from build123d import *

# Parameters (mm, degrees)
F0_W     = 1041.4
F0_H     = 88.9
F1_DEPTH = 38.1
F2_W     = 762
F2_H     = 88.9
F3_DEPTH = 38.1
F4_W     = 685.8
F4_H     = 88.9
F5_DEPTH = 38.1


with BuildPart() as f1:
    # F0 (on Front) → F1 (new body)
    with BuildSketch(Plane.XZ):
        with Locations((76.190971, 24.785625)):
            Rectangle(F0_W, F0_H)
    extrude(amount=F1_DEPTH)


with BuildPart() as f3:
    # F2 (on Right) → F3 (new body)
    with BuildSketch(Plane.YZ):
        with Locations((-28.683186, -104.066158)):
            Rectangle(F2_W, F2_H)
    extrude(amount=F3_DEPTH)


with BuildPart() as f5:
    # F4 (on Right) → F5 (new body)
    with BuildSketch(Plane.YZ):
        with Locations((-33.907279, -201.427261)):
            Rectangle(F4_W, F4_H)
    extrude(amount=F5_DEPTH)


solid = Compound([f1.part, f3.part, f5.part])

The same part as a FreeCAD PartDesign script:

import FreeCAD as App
import Part
import Sketcher
from FreeCAD import Vector
Q = App.Units.Quantity

doc = App.newDocument("Part")
body = doc.addObject("PartDesign::Body", "Body")

# Sketch on XZ plane
sketch1 = body.newObject("Sketcher::SketchObject", "Sketch")
sketch1.AttachmentSupport = (doc.getObject("XZ_Plane"), [""])
sketch1.MapMode = "FlatFace"
sketch1.addGeometry([
    Part.LineSegment(Vector(-445, 69, 0), Vector(-445, -20, 0)),
    Part.LineSegment(Vector(-445, -20, 0), Vector(597, -20, 0)),
    Part.LineSegment(Vector(597, -20, 0), Vector(597, 69, 0)),
    Part.LineSegment(Vector(597, 69, 0), Vector(-445, 69, 0)),
], False)
sketch1.addConstraint([
    Sketcher.Constraint("Coincident", 0, 2, 1, 1),
    Sketcher.Constraint("Coincident", 1, 2, 2, 1),
    Sketcher.Constraint("Coincident", 2, 2, 3, 1),
    Sketcher.Constraint("Coincident", 3, 2, 0, 1),
    Sketcher.Constraint("Vertical", 0),
    Sketcher.Constraint("Horizontal", 1),
    Sketcher.Constraint("Vertical", 2),
    Sketcher.Constraint("Horizontal", 3),
    Sketcher.Constraint("DistanceX", 1, 1, 1, 2, Q("41 in")),
    Sketcher.Constraint("DistanceY", 0, 2, 0, 1, Q("3.5 in")),
    Sketcher.Constraint("DistanceX", 0, 2, -1, 1, 444.509029),
    Sketcher.Constraint("DistanceY", 0, 2, -1, 1, 19.664375),
])
pad1 = body.newObject("PartDesign::Pad", "Pad")
pad1.Profile = sketch1
pad1.Length = Q("1.5 in")
body2 = doc.addObject("PartDesign::Body", "Body001")

# Sketch on YZ plane
sketch2 = body2.newObject("Sketcher::SketchObject", "Sketch001")
sketch2.AttachmentSupport = (doc.getObject("YZ_Plane001"), [""])
sketch2.MapMode = "FlatFace"
sketch2.addGeometry([
    Part.LineSegment(Vector(-410, -60, 0), Vector(-410, -149, 0)),
    Part.LineSegment(Vector(-410, -149, 0), Vector(352, -149, 0)),
    Part.LineSegment(Vector(352, -149, 0), Vector(352, -60, 0)),
    Part.LineSegment(Vector(352, -60, 0), Vector(-410, -60, 0)),
], False)
sketch2.addConstraint([
    Sketcher.Constraint("Coincident", 0, 2, 1, 1),
    Sketcher.Constraint("Coincident", 1, 2, 2, 1),
    Sketcher.Constraint("Coincident", 2, 2, 3, 1),
    Sketcher.Constraint("Coincident", 3, 2, 0, 1),
    Sketcher.Constraint("Vertical", 0),
    Sketcher.Constraint("Horizontal", 1),
    Sketcher.Constraint("Vertical", 2),
    Sketcher.Constraint("Horizontal", 3),
    Sketcher.Constraint("DistanceX", 1, 1, 1, 2, Q("30 in")),
    Sketcher.Constraint("DistanceY", 0, 2, 0, 1, Q("3.5 in")),
    Sketcher.Constraint("DistanceX", 0, 2, -1, 1, 409.683186),
    Sketcher.Constraint("DistanceY", 0, 2, -1, 1, 148.516158),
])
pad2 = body2.newObject("PartDesign::Pad", "Pad001")
pad2.Profile = sketch2
pad2.Length = Q("1.5 in")
body3 = doc.addObject("PartDesign::Body", "Body002")

# Sketch on YZ plane
sketch3 = body3.newObject("Sketcher::SketchObject", "Sketch002")
sketch3.AttachmentSupport = (doc.getObject("YZ_Plane002"), [""])
sketch3.MapMode = "FlatFace"
sketch3.addGeometry([
    Part.LineSegment(Vector(-377, -157, 0), Vector(-377, -246, 0)),
    Part.LineSegment(Vector(-377, -246, 0), Vector(309, -246, 0)),
    Part.LineSegment(Vector(309, -246, 0), Vector(309, -157, 0)),
    Part.LineSegment(Vector(309, -157, 0), Vector(-377, -157, 0)),
], False)
sketch3.addConstraint([
    Sketcher.Constraint("Coincident", 0, 2, 1, 1),
    Sketcher.Constraint("Coincident", 1, 2, 2, 1),
    Sketcher.Constraint("Coincident", 2, 2, 3, 1),
    Sketcher.Constraint("Coincident", 3, 2, 0, 1),
    Sketcher.Constraint("Vertical", 0),
    Sketcher.Constraint("Horizontal", 1),
    Sketcher.Constraint("Vertical", 2),
    Sketcher.Constraint("Horizontal", 3),
    Sketcher.Constraint("DistanceX", 1, 1, 1, 2, Q("27 in")),
    Sketcher.Constraint("DistanceY", 0, 2, 0, 1, Q("3.5 in")),
    Sketcher.Constraint("DistanceX", 0, 2, -1, 1, 376.807279),
    Sketcher.Constraint("DistanceY", 0, 2, -1, 1, 245.877261),
])
pad3 = body3.newObject("PartDesign::Pad", "Pad002")
pad3.Profile = sketch3
pad3.Length = Q("1.5 in")

doc.recompute()
